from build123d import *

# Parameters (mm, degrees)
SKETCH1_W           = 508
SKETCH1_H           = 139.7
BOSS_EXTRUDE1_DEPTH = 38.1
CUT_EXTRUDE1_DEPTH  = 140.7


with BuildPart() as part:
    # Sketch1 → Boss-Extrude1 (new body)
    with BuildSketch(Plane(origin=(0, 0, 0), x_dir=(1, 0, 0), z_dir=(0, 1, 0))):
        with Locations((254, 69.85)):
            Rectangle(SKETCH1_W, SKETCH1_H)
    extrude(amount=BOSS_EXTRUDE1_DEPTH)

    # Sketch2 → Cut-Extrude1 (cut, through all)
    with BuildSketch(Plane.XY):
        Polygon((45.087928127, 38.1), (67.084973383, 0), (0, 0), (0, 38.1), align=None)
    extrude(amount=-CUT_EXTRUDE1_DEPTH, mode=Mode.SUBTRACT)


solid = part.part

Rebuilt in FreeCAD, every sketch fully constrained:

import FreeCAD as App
import Part
import Sketcher
Q = App.Units.Quantity

doc = App.newDocument("Part")
body = doc.addObject("PartDesign::Body", "Body")

# Sketch on XZ plane
sketch1 = body.newObject("Sketcher::SketchObject", "Sketch")
sketch1.AttachmentSupport = (doc.getObject("XZ_Plane"), [""])
sketch1.MapMode = "FlatFace"
sketch1.addGeometry([
    Part.LineSegment(App.Vector(0, -140, 0), App.Vector(0, 0, 0)),
    Part.LineSegment(App.Vector(0, 0, 0), App.Vector(508, 0, 0)),
    Part.LineSegment(App.Vector(508, 0, 0), App.Vector(508, -140, 0)),
    Part.LineSegment(App.Vector(508, -140, 0), App.Vector(0, -140, 0)),
], False)
sketch1.addConstraint([
    Sketcher.Constraint("Coincident", 0, 2, 1, 1),
    Sketcher.Constraint("Coincident", 1, 2, 2, 1),
    Sketcher.Constraint("Coincident", 2, 2, 3, 1),
    Sketcher.Constraint("Coincident", 3, 2, 0, 1),
    Sketcher.Constraint("Vertical", 0),
    Sketcher.Constraint("Horizontal", 1),
    Sketcher.Constraint("Vertical", 2),
    Sketcher.Constraint("Horizontal", 3),
    Sketcher.Constraint("Coincident", 0, 2, -1, 1),
    Sketcher.Constraint("DistanceX", 1, 1, 1, 2, Q("20 in")),
    Sketcher.Constraint("DistanceY", 0, 1, 0, 2, Q("5.5 in")),
])
pad1 = body.newObject("PartDesign::Pad", "Pad")
pad1.Profile = sketch1
pad1.Length = Q("1.5 in")
pad1.Reversed = True

# Sketch on XY plane
sketch2 = body.newObject("Sketcher::SketchObject", "Sketch001")
sketch2.AttachmentSupport = (doc.getObject("XY_Plane"), [""])
sketch2.MapMode = "FlatFace"
sketch2.addGeometry([
    Part.LineSegment(App.Vector(67, 0, 0), App.Vector(45, 38, 0)),
    Part.LineSegment(App.Vector(45, 38, 0), App.Vector(0, 38, 0)),
    Part.LineSegment(App.Vector(0, 38, 0), App.Vector(0, 0, 0)),
    Part.LineSegment(App.Vector(0, 0, 0), App.Vector(67, 0, 0)),
], False)
sketch2.addConstraint([
    Sketcher.Constraint("Coincident", 0, 2, 1, 1),
    Sketcher.Constraint("Coincident", 1, 2, 2, 1),
    Sketcher.Constraint("Coincident", 2, 2, 3, 1),
    Sketcher.Constraint("Coincident", 3, 2, 0, 1),
    Sketcher.Constraint("Horizontal", 1),
    Sketcher.Constraint("Vertical", 2),
    Sketcher.Constraint("Horizontal", 3),
    Sketcher.Constraint("Coincident", 2, 2, -1, 1),
    Sketcher.Constraint("DistanceY", 2, 2, 2, 1, Q("1.5 in")),
    Sketcher.Constraint("Angle", 0, Q("120 deg")),
    Sketcher.Constraint("DistanceX", 1, 2, 1, 1, 45.087928),
])
pocket1 = body.newObject("PartDesign::Pocket", "Pocket")
pocket1.Profile = sketch2
pocket1.Type = "ThroughAll"

doc.recompute()
